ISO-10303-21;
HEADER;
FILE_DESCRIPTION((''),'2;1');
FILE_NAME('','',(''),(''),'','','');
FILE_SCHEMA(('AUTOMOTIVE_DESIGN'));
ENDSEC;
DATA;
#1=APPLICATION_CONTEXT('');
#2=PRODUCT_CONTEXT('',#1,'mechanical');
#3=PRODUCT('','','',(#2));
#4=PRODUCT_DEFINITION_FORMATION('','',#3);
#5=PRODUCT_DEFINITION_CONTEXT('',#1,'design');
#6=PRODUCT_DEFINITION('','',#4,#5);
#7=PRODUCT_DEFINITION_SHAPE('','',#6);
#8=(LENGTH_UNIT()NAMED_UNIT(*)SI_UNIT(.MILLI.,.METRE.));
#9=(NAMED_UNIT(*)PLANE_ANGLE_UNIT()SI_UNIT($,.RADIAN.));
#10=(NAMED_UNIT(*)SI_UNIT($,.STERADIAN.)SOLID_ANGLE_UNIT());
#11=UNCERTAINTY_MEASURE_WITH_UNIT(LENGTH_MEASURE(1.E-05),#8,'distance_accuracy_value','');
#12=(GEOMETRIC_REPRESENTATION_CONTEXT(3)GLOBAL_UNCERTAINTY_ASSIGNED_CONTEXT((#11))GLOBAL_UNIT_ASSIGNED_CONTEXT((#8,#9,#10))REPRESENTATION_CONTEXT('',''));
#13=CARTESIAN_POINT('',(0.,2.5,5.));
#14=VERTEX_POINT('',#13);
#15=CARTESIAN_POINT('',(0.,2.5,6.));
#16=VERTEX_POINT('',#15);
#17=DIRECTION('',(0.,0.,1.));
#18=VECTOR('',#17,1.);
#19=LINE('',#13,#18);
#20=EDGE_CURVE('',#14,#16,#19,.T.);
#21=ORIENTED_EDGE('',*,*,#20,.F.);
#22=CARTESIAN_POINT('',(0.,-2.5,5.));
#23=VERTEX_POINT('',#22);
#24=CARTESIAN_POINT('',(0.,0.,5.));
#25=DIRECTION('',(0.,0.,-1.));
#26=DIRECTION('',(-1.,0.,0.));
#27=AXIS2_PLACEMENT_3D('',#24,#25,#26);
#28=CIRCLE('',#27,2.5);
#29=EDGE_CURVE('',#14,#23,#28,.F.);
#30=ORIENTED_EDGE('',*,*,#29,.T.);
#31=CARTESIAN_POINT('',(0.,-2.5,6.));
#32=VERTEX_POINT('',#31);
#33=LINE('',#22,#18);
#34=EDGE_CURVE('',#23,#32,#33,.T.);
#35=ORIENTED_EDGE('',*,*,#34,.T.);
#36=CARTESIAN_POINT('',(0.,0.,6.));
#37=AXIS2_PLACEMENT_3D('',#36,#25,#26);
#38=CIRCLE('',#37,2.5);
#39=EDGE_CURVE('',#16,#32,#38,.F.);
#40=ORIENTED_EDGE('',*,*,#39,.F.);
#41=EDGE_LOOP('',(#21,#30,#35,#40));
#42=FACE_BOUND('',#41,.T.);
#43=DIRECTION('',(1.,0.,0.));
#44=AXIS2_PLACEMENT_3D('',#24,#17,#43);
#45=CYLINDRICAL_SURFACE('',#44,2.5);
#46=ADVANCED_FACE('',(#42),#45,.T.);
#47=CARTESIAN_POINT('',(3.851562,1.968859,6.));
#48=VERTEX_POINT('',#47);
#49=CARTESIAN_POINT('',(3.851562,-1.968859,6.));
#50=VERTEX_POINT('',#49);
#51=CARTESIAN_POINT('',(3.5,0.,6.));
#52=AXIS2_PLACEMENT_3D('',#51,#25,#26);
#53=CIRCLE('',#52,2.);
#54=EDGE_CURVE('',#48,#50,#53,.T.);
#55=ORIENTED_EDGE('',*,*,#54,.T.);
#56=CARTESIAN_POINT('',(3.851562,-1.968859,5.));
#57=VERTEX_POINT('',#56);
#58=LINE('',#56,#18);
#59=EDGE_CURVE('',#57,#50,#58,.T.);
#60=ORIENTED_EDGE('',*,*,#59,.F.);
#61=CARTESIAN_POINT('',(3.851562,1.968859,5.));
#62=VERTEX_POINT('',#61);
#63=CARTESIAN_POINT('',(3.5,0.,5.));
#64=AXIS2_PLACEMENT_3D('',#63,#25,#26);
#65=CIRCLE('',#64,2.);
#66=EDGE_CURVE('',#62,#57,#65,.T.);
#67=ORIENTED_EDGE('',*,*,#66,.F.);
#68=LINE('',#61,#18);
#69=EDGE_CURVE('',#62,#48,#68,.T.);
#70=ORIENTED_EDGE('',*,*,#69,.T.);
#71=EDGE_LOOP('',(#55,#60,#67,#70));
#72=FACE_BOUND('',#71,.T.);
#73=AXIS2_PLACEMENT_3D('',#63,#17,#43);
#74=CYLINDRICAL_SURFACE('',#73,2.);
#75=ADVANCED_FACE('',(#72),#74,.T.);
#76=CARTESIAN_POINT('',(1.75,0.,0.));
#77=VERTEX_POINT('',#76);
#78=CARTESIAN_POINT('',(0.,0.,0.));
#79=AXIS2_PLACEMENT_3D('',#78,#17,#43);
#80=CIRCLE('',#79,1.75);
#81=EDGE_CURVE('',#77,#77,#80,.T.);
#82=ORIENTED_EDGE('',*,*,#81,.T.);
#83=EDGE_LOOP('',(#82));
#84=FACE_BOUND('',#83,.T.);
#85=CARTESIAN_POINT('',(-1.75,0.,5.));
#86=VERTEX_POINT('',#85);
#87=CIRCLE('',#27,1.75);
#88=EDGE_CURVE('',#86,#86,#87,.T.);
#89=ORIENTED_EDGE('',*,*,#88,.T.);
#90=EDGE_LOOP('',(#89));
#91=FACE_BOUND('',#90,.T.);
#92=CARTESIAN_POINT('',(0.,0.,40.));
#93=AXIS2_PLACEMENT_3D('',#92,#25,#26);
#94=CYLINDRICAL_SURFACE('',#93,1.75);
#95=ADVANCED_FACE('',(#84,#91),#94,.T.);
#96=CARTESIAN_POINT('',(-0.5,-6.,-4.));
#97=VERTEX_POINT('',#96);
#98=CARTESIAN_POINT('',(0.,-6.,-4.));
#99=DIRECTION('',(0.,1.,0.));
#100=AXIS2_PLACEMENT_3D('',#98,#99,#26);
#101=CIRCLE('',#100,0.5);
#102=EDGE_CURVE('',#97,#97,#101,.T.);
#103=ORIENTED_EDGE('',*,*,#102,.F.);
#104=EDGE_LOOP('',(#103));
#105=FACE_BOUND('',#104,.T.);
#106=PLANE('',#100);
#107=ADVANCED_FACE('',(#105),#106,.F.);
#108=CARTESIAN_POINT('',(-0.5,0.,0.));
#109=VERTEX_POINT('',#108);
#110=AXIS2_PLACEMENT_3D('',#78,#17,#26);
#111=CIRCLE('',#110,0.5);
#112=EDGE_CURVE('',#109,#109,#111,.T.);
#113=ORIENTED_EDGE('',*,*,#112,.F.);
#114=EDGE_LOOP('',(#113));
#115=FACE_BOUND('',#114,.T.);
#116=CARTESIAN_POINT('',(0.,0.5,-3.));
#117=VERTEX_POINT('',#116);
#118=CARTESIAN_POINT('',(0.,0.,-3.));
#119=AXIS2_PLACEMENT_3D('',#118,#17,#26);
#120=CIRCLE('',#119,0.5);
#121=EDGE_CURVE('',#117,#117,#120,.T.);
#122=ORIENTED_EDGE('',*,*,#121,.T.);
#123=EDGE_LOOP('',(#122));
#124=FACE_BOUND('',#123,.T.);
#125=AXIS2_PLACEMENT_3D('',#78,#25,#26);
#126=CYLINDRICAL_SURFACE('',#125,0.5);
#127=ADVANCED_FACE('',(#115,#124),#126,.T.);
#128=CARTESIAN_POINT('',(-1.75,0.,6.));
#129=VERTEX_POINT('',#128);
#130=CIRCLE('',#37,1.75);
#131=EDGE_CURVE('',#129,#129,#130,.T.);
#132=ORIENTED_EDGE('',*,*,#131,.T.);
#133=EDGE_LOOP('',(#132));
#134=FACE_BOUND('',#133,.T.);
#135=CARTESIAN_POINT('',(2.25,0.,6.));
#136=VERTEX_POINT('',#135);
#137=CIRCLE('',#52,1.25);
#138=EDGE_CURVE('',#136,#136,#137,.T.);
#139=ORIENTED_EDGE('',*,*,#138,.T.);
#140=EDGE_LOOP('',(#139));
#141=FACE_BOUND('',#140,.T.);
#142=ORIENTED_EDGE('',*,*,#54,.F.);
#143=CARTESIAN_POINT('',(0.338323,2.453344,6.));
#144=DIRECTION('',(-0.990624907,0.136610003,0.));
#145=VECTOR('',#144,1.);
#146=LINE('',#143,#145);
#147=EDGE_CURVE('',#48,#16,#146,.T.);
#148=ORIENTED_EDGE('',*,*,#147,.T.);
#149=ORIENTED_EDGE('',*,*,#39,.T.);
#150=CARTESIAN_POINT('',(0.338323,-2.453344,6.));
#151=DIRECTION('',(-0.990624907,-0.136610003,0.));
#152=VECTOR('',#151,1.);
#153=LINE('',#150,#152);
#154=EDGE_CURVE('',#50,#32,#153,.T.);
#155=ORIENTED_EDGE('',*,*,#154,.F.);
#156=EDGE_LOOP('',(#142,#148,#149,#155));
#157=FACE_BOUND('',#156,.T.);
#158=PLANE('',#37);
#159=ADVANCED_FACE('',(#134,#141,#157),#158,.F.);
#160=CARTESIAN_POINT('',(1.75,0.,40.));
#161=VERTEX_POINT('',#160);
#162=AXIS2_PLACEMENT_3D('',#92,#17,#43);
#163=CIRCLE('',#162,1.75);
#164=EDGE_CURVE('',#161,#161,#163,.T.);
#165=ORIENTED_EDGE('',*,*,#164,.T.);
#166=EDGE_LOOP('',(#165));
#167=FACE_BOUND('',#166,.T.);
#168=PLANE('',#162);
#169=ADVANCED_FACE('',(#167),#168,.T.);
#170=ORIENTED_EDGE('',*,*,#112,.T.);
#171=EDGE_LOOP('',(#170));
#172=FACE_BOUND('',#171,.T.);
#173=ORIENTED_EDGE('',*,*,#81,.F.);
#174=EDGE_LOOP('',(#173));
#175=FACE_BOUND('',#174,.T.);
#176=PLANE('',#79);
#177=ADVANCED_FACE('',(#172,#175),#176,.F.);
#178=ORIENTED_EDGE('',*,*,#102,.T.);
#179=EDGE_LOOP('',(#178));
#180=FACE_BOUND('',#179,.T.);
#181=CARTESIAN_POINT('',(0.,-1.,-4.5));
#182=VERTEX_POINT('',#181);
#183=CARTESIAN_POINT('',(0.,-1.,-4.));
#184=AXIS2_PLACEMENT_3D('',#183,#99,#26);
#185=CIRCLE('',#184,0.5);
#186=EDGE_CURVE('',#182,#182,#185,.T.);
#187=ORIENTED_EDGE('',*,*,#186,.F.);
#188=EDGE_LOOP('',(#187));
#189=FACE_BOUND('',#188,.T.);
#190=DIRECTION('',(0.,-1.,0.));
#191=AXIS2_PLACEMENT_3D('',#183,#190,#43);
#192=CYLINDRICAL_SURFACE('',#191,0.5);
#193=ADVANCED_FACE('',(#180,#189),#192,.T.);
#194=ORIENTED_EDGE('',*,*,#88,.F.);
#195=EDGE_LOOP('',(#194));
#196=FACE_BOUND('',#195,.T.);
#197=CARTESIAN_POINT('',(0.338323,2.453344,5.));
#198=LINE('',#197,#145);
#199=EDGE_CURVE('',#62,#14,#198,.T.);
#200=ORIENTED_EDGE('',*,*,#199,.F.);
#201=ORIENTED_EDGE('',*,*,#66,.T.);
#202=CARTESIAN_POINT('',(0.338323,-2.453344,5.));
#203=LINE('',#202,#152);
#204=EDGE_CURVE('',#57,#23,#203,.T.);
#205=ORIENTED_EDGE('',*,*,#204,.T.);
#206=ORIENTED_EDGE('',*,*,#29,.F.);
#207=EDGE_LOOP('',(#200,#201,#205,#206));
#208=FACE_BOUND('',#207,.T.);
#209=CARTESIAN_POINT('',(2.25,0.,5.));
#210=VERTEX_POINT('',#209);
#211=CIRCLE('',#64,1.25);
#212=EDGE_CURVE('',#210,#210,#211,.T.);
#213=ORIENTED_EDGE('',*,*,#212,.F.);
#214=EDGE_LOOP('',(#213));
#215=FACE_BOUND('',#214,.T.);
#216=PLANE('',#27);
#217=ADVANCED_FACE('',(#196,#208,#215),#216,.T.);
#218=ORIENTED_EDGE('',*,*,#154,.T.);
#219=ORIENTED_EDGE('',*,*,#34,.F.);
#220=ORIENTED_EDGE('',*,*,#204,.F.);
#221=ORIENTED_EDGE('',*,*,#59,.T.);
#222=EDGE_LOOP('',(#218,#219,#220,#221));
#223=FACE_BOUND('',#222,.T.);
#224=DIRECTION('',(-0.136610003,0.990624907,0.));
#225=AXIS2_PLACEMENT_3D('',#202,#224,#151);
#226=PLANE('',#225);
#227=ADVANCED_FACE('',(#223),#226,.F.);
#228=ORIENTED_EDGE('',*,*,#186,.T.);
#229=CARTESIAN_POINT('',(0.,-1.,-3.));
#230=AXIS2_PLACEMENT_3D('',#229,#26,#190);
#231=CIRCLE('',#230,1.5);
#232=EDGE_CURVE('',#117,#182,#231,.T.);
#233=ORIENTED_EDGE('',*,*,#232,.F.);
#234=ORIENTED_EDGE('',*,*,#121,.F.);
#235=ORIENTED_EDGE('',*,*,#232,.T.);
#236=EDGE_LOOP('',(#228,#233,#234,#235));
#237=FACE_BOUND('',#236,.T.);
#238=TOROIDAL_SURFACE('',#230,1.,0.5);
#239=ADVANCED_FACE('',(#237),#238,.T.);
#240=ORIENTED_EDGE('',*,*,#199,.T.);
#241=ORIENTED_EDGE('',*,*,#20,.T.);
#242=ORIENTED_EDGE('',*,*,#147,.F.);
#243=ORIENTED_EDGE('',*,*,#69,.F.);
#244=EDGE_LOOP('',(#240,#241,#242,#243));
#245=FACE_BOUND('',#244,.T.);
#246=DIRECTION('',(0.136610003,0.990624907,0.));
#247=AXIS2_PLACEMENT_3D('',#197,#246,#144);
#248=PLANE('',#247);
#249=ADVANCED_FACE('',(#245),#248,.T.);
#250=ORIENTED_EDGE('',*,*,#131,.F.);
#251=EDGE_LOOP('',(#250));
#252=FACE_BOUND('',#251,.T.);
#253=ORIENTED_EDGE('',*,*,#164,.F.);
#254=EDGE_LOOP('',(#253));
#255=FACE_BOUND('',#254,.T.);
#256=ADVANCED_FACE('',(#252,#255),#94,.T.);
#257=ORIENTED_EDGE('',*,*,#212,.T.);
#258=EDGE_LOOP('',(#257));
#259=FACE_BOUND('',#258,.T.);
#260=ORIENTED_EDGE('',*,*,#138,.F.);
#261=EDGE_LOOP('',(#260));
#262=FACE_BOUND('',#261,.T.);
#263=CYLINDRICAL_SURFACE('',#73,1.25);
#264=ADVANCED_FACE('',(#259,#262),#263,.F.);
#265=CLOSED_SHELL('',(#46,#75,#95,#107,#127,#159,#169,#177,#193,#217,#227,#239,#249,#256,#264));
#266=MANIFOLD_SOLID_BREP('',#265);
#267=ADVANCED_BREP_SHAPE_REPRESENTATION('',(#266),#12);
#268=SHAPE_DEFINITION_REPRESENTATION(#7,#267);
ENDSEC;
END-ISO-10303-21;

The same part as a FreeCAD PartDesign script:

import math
import FreeCAD as App
import Part
import Sketcher

V = App.Vector
Q = App.Units.Quantity

doc = App.newDocument("Part")
body = doc.addObject("PartDesign::Body", "Body")

# Sketch on XY plane
sketch1 = body.newObject("Sketcher::SketchObject", "Sketch")
sketch1.AttachmentSupport = (doc.getObject("XY_Plane"), [""])
sketch1.MapMode = "FlatFace"
sketch1.addGeometry(Part.Circle(V(0, 0, 0), V(0, 0, 1), 1.75), False)
sketch1.addConstraint([
    Sketcher.Constraint("Coincident", 0, 3, -1, 1),
    Sketcher.Constraint("Diameter", 0, Q("3.5 mm")),
])
pad1 = body.newObject("PartDesign::Pad", "Pad")
pad1.Profile = sketch1
pad1.Length = 40

# Sketch on XY plane
sketch2 = body.newObject("Sketcher::SketchObject", "Sketch001")
sketch2.AttachmentSupport = (doc.getObject("XY_Plane"), [""])
sketch2.MapMode = "FlatFace"
sketch2.addGeometry(Part.Circle(V(0, 0, 0), V(0, 0, 1), 0.5), False)
sketch2.addConstraint([
    Sketcher.Constraint("Coincident", 0, 3, -1, 1),
    Sketcher.Constraint("Diameter", 0, Q("1 mm")),
])

# Sketch on YZ plane
sketch3 = body.newObject("Sketcher::SketchObject", "Sketch002")
sketch3.AttachmentSupport = (doc.getObject("YZ_Plane"), [""])
sketch3.MapMode = "FlatFace"
sketch3.addGeometry([
    Part.LineSegment(V(0, 0, 0), V(0, -3, 0)),
    Part.ArcOfCircle(Part.Circle(V(-1, -3, 0), V(0, 0, 1), 1), math.radians(-90), math.radians(0)),
    Part.LineSegment(V(-1, -4, 0), V(-6, -4, 0)),
], False)
sketch3.addConstraint([
    Sketcher.Constraint("Tangent", 0, 2, 1, 2),
    Sketcher.Constraint("Tangent", 1, 1, 2, 1),
    Sketcher.Constraint("Vertical", 0),
    Sketcher.Constraint("Horizontal", 2),
    Sketcher.Constraint("Coincident", 0, 1, -1, 1),
    Sketcher.Constraint("Radius", 1, Q("1 mm")),
    Sketcher.Constraint("DistanceX", 2, 2, 2, 1, Q("5 mm")),
    Sketcher.Constraint("DistanceY", 0, 2, 0, 1, Q("3 mm")),
])
doc.recompute()

additivepipe = body.newObject("PartDesign::AdditivePipe", "AdditivePipe")
additivepipe.Profile = sketch2
additivepipe.Spine = (sketch3, ["Edge1", "Edge2", "Edge3"])

# Sketch on XY plane
sketch4 = body.newObject("Sketcher::SketchObject", "Sketch003")
sketch4.AttachmentSupport = (doc.getObject("XY_Plane"), [""])
sketch4.MapMode = "FlatFace"
sketch4.AttachmentOffset = App.Placement(V(0, 0, 6), App.Rotation())
sketch4.addGeometry([
    Part.LineSegment(V(0, 2.5, 0), V(3.851562, 1.968859, 0)),  # 0
    Part.ArcOfCircle(Part.Circle(V(3.5, 0, 0), V(0, 0, 1), 2), math.radians(-79.875896), math.radians(79.875896)),  # 1
    Part.LineSegment(V(3.851562, -1.968859, 0), V(0, -2.5, 0)),  # 2
    Part.ArcOfCircle(Part.Circle(V(0, 0, 0), V(0, 0, 1), 2.5), math.radians(90), math.radians(270)),  # 3
    Part.Circle(V(3.5, 0, 0), V(0, 0, 1), 1.25),  # 4
], False)
sketch4.addConstraint([
    Sketcher.Constraint("Coincident", 0, 2, 1, 2),
    Sketcher.Constraint("Coincident", 1, 1, 2, 1),
    Sketcher.Constraint("Coincident", 2, 2, 3, 2),
    Sketcher.Constraint("Coincident", 3, 1, 0, 1),
    Sketcher.Constraint("Coincident", 3, 3, -1, 1),
    Sketcher.Constraint("Coincident", 4, 3, 1, 3),
    Sketcher.Constraint("Symmetric", 0, 2, 1, 1, -1),
    Sketcher.Constraint("PointOnObject", 2, 2, -2),
    Sketcher.Constraint("PointOnObject", 3, 1, -2),
    Sketcher.Constraint("Radius", 1, Q("2 mm")),
    Sketcher.Constraint("Diameter", 4, Q("2.5 mm")),
    Sketcher.Constraint("Radius", 3, Q("2.5 mm")),
    Sketcher.Constraint("DistanceX", -1, 1, 1, 3, Q("3.5 mm")),
    Sketcher.Constraint("DistanceX", -1, 1, 0, 2, Q("3.851562 mm")),
])
pad2 = body.newObject("PartDesign::Pad", "Pad001")
pad2.Profile = sketch4
pad2.Length = 1
pad2.Reversed = True

doc.recompute()
